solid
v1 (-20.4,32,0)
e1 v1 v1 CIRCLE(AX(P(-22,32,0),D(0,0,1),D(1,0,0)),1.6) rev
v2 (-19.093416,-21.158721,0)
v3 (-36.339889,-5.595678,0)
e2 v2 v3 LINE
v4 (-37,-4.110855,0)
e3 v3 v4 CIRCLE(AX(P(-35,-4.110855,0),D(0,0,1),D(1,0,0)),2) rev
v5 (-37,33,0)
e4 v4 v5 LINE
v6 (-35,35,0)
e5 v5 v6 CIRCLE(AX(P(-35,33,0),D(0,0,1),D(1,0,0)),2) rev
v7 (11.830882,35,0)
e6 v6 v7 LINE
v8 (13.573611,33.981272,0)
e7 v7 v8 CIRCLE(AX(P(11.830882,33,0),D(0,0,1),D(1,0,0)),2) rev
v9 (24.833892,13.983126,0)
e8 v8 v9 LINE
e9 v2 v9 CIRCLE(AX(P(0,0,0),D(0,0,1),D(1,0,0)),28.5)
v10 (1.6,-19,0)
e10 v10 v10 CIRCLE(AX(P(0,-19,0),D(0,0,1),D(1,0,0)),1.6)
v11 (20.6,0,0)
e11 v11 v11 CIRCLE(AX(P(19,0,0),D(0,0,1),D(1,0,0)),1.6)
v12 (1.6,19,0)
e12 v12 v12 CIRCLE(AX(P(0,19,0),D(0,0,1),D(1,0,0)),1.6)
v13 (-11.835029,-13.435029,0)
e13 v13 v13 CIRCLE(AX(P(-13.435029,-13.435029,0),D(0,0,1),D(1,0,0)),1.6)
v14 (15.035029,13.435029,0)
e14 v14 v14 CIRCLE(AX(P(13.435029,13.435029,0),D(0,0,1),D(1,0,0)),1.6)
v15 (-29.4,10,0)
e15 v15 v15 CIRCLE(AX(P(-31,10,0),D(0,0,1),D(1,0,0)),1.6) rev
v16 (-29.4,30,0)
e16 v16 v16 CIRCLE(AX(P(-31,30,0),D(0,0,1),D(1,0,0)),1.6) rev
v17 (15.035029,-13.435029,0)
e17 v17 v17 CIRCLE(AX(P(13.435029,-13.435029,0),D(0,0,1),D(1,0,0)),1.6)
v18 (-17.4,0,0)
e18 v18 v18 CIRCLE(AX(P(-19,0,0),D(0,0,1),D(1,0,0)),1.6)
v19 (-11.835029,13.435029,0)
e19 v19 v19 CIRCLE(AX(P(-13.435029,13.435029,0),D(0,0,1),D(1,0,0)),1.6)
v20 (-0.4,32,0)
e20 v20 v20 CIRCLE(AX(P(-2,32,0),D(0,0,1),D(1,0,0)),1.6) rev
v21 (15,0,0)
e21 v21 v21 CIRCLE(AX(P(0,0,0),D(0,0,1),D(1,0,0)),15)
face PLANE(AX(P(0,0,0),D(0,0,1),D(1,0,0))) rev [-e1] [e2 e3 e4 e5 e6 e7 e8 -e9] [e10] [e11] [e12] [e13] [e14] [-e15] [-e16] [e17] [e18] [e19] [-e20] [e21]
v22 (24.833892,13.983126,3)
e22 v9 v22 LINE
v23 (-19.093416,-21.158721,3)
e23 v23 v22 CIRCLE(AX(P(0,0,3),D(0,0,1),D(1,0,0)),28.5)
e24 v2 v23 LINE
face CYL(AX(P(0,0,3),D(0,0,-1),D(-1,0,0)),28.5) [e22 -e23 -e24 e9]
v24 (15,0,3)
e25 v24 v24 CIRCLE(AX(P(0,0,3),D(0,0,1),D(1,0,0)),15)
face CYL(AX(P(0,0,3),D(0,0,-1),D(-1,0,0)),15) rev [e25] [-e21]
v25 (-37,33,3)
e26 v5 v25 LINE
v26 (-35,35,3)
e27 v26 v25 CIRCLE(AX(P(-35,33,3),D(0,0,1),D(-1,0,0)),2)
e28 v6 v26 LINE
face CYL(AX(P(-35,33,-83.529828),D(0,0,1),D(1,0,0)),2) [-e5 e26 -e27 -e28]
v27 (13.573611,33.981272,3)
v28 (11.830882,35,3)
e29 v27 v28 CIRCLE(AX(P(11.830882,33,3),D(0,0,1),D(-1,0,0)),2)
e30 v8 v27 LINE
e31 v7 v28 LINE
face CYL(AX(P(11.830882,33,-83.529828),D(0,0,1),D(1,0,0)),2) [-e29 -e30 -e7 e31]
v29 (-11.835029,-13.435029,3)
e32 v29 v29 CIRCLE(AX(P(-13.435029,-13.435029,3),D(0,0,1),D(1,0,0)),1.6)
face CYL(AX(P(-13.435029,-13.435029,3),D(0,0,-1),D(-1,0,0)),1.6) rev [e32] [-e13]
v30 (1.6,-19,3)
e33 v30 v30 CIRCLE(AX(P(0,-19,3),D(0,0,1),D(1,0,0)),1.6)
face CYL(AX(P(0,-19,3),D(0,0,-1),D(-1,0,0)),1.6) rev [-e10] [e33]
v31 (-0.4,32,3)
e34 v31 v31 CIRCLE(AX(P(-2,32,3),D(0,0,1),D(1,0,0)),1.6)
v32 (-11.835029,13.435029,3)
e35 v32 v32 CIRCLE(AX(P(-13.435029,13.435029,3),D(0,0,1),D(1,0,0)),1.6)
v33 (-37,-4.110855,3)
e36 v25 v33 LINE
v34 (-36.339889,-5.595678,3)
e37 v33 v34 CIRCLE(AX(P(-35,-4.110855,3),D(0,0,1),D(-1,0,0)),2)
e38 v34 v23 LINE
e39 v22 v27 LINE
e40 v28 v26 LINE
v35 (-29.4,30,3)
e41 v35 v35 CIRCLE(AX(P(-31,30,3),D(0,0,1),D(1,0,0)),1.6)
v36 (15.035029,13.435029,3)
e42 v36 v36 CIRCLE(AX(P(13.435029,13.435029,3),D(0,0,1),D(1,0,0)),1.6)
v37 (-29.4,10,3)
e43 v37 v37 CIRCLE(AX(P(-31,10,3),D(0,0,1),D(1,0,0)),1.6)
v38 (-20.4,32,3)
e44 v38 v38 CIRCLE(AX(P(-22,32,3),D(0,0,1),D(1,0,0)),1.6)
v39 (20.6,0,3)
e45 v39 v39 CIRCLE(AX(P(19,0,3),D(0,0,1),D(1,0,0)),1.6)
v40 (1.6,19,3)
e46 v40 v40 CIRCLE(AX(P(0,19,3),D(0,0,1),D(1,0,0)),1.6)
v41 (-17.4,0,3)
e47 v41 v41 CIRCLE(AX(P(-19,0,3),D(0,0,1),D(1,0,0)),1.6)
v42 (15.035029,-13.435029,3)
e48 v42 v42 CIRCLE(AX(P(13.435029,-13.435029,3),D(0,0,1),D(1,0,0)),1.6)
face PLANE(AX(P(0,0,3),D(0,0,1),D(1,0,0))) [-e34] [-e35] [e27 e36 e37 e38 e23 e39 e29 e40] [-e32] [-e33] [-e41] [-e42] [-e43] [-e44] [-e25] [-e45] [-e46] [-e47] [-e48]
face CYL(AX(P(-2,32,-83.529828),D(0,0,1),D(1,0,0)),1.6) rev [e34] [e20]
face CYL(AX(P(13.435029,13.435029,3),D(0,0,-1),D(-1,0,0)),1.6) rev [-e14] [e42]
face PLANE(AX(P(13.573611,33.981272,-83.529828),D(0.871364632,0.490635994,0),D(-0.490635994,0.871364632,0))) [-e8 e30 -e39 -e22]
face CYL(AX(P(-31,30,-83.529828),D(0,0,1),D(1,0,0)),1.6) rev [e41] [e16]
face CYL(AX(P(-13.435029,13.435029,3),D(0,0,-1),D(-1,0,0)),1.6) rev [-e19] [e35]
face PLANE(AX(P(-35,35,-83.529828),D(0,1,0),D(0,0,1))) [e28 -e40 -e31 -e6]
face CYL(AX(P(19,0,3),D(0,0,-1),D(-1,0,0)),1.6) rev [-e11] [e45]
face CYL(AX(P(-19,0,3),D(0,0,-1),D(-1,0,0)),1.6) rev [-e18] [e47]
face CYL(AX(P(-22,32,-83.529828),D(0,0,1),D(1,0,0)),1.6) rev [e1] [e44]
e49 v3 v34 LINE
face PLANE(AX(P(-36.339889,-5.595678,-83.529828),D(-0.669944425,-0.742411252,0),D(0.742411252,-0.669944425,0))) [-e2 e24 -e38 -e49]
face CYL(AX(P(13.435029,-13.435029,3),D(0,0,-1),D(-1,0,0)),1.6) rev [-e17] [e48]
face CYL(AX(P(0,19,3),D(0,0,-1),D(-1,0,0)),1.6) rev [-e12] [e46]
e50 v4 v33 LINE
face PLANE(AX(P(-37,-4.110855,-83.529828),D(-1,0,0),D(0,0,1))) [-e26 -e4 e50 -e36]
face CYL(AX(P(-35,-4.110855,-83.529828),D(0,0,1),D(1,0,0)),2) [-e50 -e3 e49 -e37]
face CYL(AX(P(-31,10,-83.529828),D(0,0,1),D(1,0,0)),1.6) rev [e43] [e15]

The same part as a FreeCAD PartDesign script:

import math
import FreeCAD as App
import Part
import Sketcher
from FreeCAD import Vector
Q = App.Units.Quantity

doc = App.newDocument("Part")
body = doc.addObject("PartDesign::Body", "Body")

# Sketch on XY plane
sketch1 = body.newObject("Sketcher::SketchObject", "Sketch")
sketch1.AttachmentSupport = (doc.getObject("XY_Plane"), [""])
sketch1.MapMode = "FlatFace"
sketch1.addGeometry(Part.Circle(Vector(0, 0, 0), Vector(0, 0, 1), 28.5), False)
sketch1.addGeometry(Part.Circle(Vector(-13.4, -13.4, 0), Vector(0, 0, 1), 1.6), False)
sketch1.addGeometry(Part.Circle(Vector(0, -19, 0), Vector(0, 0, 1), 1.6), False)
sketch1.addGeometry(Part.Circle(Vector(13.4, -13.4, 0), Vector(0, 0, 1), 1.6), False)
sketch1.addGeometry(Part.Circle(Vector(-19, 0, 0), Vector(0, 0, 1), 1.6), False)
sketch1.addGeometry(Part.Circle(Vector(-13.4, 13.4, 0), Vector(0, 0, 1), 1.6), False)
sketch1.addGeometry(Part.Circle(Vector(0, 0, 0), Vector(0, 0, 1), 15), False)
sketch1.addGeometry(Part.Circle(Vector(19, 0, 0), Vector(0, 0, 1), 1.6), False)
sketch1.addGeometry(Part.Circle(Vector(0, 19, 0), Vector(0, 0, 1), 1.6), False)
sketch1.addGeometry(Part.Circle(Vector(13.4, 13.4, 0), Vector(0, 0, 1), 1.6), False)
sketch1.addConstraint(Sketcher.Constraint("Coincident", 0, 3, -1, 1))
sketch1.addConstraint(Sketcher.Constraint("Coincident", 6, 3, -1, 1))
sketch1.addConstraint(Sketcher.Constraint("Equal", 1, 2))
sketch1.addConstraint(Sketcher.Constraint("Equal", 2, 3))
sketch1.addConstraint(Sketcher.Constraint("Equal", 3, 4))
sketch1.addConstraint(Sketcher.Constraint("Equal", 4, 5))
sketch1.addConstraint(Sketcher.Constraint("Equal", 5, 7))
sketch1.addConstraint(Sketcher.Constraint("Equal", 7, 8))
sketch1.addConstraint(Sketcher.Constraint("Equal", 8, 9))
sketch1.addConstraint(Sketcher.Constraint("Symmetric", 3, 3, 5, 3, -1, 1))
sketch1.addConstraint(Sketcher.Constraint("Symmetric", 4, 3, 7, 3, -1, 1))
sketch1.addConstraint(Sketcher.Constraint("Symmetric", 2, 3, 8, 3, -1, 1))
sketch1.addConstraint(Sketcher.Constraint("Symmetric", 1, 3, 9, 3, -1, 1))
sketch1.addConstraint(Sketcher.Constraint("Symmetric", 1, 3, 3, 3, -2))
sketch1.addConstraint(Sketcher.Constraint("PointOnObject", 2, 3, -2))
sketch1.addConstraint(Sketcher.Constraint("PointOnObject", 4, 3, -1))
sketch1.addConstraint(Sketcher.Constraint("Diameter", 0, Q("57 mm")))
sketch1.addConstraint(Sketcher.Constraint("Diameter", 6, Q("30 mm")))
sketch1.addConstraint(Sketcher.Constraint("Diameter", 1, Q("3.2 mm")))
sketch1.addConstraint(Sketcher.Constraint("DistanceY", 2, 3, -1, 1, Q("19 mm")))
sketch1.addConstraint(Sketcher.Constraint("DistanceX", 4, 3, -1, 1, Q("19 mm")))
sketch1.addConstraint(Sketcher.Constraint("DistanceX", 1, 3, -1, 1, Q("13.435029 mm")))
sketch1.addConstraint(Sketcher.Constraint("DistanceY", 1, 3, -1, 1, Q("13.435029 mm")))
pad1 = body.newObject("PartDesign::Pad", "Pad")
pad1.Profile = sketch1
pad1.Length = 3

# Sketch on XY plane
sketch2 = body.newObject("Sketcher::SketchObject", "Sketch001")
sketch2.AttachmentSupport = (doc.getObject("XY_Plane"), [""])
sketch2.MapMode = "FlatFace"
sketch2.addGeometry(Part.LineSegment(Vector(-36.3, -5.6, 0), Vector(-19.1, -21.2, 0)), False)
sketch2.addGeometry(Part.ArcOfCircle(Part.Circle(Vector(0, 0, 0), Vector(0, 0, 1), 28.5), math.radians(29), math.radians(228)), False)
sketch2.addGeometry(Part.LineSegment(Vector(24.8, 14, 0), Vector(13.6, 34, 0)), False)
sketch2.addGeometry(Part.ArcOfCircle(Part.Circle(Vector(11.8, 33, 0), Vector(0, 0, 1), 2), math.radians(29), math.radians(90)), False)
sketch2.addGeometry(Part.LineSegment(Vector(11.8, 35, 0), Vector(-35, 35, 0)), False)
sketch2.addGeometry(Part.ArcOfCircle(Part.Circle(Vector(-35, 33, 0), Vector(0, 0, 1), 2), math.radians(90), math.radians(180)), False)
sketch2.addGeometry(Part.LineSegment(Vector(-37, 33, 0), Vector(-37, -4.1, 0)), False)
sketch2.addGeometry(Part.ArcOfCircle(Part.Circle(Vector(-35, -4.1, 0), Vector(0, 0, 1), 2), math.radians(180), math.radians(228)), False)
sketch2.addGeometry(Part.Circle(Vector(-31, 10, 0), Vector(0, 0, 1), 1.6), False)
sketch2.addGeometry(Part.Circle(Vector(-31, 30, 0), Vector(0, 0, 1), 1.6), False)
sketch2.addGeometry(Part.Circle(Vector(-22, 32, 0), Vector(0, 0, 1), 1.6), False)
sketch2.addGeometry(Part.Circle(Vector(-2, 32, 0), Vector(0, 0, 1), 1.6), False)
sketch2.addConstraint(Sketcher.Constraint("Tangent", 0, 2, 1, 2))
sketch2.addConstraint(Sketcher.Constraint("Tangent", 1, 1, 2, 1))
sketch2.addConstraint(Sketcher.Constraint("Tangent", 2, 2, 3, 1))
sketch2.addConstraint(Sketcher.Constraint("Tangent", 3, 2, 4, 1))
sketch2.addConstraint(Sketcher.Constraint("Tangent", 4, 2, 5, 1))
sketch2.addConstraint(Sketcher.Constraint("Tangent", 5, 2, 6, 1))
sketch2.addConstraint(Sketcher.Constraint("Tangent", 6, 2, 7, 1))
sketch2.addConstraint(Sketcher.Constraint("Tangent", 7, 2, 0, 1))
sketch2.addConstraint(Sketcher.Constraint("Horizontal", 4))
sketch2.addConstraint(Sketcher.Constraint("Vertical", 6))
sketch2.addConstraint(Sketcher.Constraint("Coincident", 1, 3, -1, 1))
sketch2.addConstraint(Sketcher.Constraint("Equal", 3, 5))
sketch2.addConstraint(Sketcher.Constraint("Equal", 5, 7))
sketch2.addConstraint(Sketcher.Constraint("Equal", 8, 9))
sketch2.addConstraint(Sketcher.Constraint("Equal", 9, 10))
sketch2.addConstraint(Sketcher.Constraint("Equal", 10, 11))
sketch2.addConstraint(Sketcher.Constraint("Horizontal", 10, 3, 11, 3))
sketch2.addConstraint(Sketcher.Constraint("Vertical", 8, 3, 9, 3))
sketch2.addConstraint(Sketcher.Constraint("Radius", 3, Q("2 mm")))
sketch2.addConstraint(Sketcher.Constraint("Diameter", 8, Q("3.2 mm")))
sketch2.addConstraint(Sketcher.Constraint("Radius", 1, Q("28.5 mm")))
sketch2.addConstraint(Sketcher.Constraint("DistanceY", -1, 1, 3, 3, Q("33 mm")))
sketch2.addConstraint(Sketcher.Constraint("DistanceX", 5, 3, -1, 1, Q("35 mm")))
sketch2.addConstraint(Sketcher.Constraint("DistanceX", 8, 3, -1, 1, Q("31 mm")))
sketch2.addConstraint(Sketcher.Constraint("DistanceY", -1, 1, 8, 3, Q("10 mm")))
sketch2.addConstraint(Sketcher.Constraint("DistanceY", -1, 1, 9, 3, Q("30 mm")))
sketch2.addConstraint(Sketcher.Constraint("DistanceX", 10, 3, -1, 1, Q("22 mm")))
sketch2.addConstraint(Sketcher.Constraint("DistanceY", -1, 1, 10, 3, Q("32 mm")))
sketch2.addConstraint(Sketcher.Constraint("DistanceX", 11, 3, -1, 1, Q("2 mm")))
sketch2.addConstraint(Sketcher.Constraint("Distance", 0, Q("23.230349 mm")))
sketch2.addConstraint(Sketcher.Constraint("DistanceX", 4, 2, 4, 1, Q("46.830882 mm")))
pad2 = body.newObject("PartDesign::Pad", "Pad001")
pad2.Profile = sketch2
pad2.Length = 3

doc.recompute()
